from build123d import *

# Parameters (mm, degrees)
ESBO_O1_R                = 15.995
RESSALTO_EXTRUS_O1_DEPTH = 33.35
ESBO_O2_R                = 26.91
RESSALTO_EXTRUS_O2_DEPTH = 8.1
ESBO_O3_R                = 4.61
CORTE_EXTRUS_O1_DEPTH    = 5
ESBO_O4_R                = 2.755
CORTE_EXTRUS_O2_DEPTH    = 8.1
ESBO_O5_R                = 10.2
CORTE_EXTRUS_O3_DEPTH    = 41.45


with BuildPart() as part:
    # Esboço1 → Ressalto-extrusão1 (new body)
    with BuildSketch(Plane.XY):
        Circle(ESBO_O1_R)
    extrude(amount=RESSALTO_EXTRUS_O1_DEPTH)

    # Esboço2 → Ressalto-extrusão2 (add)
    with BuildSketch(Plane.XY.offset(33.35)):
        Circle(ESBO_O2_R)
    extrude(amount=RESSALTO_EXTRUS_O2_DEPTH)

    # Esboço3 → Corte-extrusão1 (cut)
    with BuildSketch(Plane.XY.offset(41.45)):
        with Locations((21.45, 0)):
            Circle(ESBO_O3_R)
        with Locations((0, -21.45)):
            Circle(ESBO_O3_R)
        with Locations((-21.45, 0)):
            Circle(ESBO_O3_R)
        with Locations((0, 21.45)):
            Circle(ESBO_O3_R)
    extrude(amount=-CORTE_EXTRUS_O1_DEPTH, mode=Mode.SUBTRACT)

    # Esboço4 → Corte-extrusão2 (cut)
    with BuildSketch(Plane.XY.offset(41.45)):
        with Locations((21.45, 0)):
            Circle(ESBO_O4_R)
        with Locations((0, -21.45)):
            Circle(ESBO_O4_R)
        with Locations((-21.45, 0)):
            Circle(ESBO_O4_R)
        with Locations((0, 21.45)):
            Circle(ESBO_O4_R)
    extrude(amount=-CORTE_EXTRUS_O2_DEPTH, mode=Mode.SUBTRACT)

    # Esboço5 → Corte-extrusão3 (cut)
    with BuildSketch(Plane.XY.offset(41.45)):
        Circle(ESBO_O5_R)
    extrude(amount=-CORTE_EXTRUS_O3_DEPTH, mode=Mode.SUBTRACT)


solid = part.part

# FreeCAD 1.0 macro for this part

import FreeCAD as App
import Part
import Sketcher

doc = App.newDocument("Part")
body = doc.addObject("PartDesign::Body", "Body")

# Sketch on XY plane
sketch1 = body.newObject("Sketcher::SketchObject", "Sketch")
sketch1.AttachmentSupport = (doc.getObject("XY_Plane"), [""])
sketch1.MapMode = "FlatFace"
sketch1.addGeometry(Part.Circle(App.Vector(0, 0, 0), App.Vector(0, 0, 1), 16), False)
sketch1.addConstraint(Sketcher.Constraint("Coincident", 0, 3, -1, 1))
sketch1.addConstraint(Sketcher.Constraint("Diameter", 0, 31.99))
pad1 = body.newObject("PartDesign::Pad", "Pad")
pad1.Profile = sketch1
pad1.Length = 33.35

# Sketch on XY plane
sketch2 = body.newObject("Sketcher::SketchObject", "Sketch001")
sketch2.AttachmentSupport = (doc.getObject("XY_Plane"), [""])
sketch2.MapMode = "FlatFace"
sketch2.AttachmentOffset = App.Placement(App.Vector(0, 0, 33.35), App.Rotation())
sketch2.addGeometry(Part.Circle(App.Vector(0, 0, 0), App.Vector(0, 0, 1), 27), False)
sketch2.addConstraint(Sketcher.Constraint("Coincident", 0, 3, -1, 1))
sketch2.addConstraint(Sketcher.Constraint("Diameter", 0, 53.82))
pad2 = body.newObject("PartDesign::Pad", "Pad001")
pad2.Profile = sketch2
pad2.Length = 8.1

# Sketch on XY plane
sketch3 = body.newObject("Sketcher::SketchObject", "Sketch002")
sketch3.AttachmentSupport = (doc.getObject("XY_Plane"), [""])
sketch3.MapMode = "FlatFace"
sketch3.AttachmentOffset = App.Placement(App.Vector(0, 0, 41.45), App.Rotation())
sketch3.addGeometry(Part.Circle(App.Vector(21.4, 0, 0), App.Vector(0, 0, 1), 4.6), False)
sketch3.addGeometry(Part.Circle(App.Vector(0, -21.4, 0), App.Vector(0, 0, 1), 4.6), False)
sketch3.addGeometry(Part.Circle(App.Vector(-21.4, 0, 0), App.Vector(0, 0, 1), 4.6), False)
sketch3.addGeometry(Part.Circle(App.Vector(0, 21.4, 0), App.Vector(0, 0, 1), 4.6), False)
sketch3.addConstraint(Sketcher.Constraint("Equal", 0, 1))
sketch3.addConstraint(Sketcher.Constraint("Equal", 1, 2))
sketch3.addConstraint(Sketcher.Constraint("Equal", 2, 3))
sketch3.addConstraint(Sketcher.Constraint("Symmetric", 0, 3, 2, 3, -1, 1))
sketch3.addConstraint(Sketcher.Constraint("Symmetric", 1, 3, 3, 3, -1, 1))
sketch3.addConstraint(Sketcher.Constraint("PointOnObject", 0, 3, -1))
sketch3.addConstraint(Sketcher.Constraint("PointOnObject", 1, 3, -2))
sketch3.addConstraint(Sketcher.Constraint("Diameter", 0, 9.22))
sketch3.addConstraint(Sketcher.Constraint("DistanceX", 2, 3, 0, 3, 42.9))
sketch3.addConstraint(Sketcher.Constraint("DistanceY", 1, 3, 3, 3, 42.9))
pocket1 = body.newObject("PartDesign::Pocket", "Pocket")
pocket1.Profile = sketch3
pocket1.Length = 5

# Sketch on XY plane
sketch4 = body.newObject("Sketcher::SketchObject", "Sketch003")
sketch4.AttachmentSupport = (doc.getObject("XY_Plane"), [""])
sketch4.MapMode = "FlatFace"
sketch4.AttachmentOffset = App.Placement(App.Vector(0, 0, 41.45), App.Rotation())
sketch4.addGeometry(Part.Circle(App.Vector(21.4, 0, 0), App.Vector(0, 0, 1), 2.8), False)
sketch4.addGeometry(Part.Circle(App.Vector(0, -21.4, 0), App.Vector(0, 0, 1), 2.8), False)
sketch4.addGeometry(Part.Circle(App.Vector(-21.4, 0, 0), App.Vector(0, 0, 1), 2.8), False)
sketch4.addGeometry(Part.Circle(App.Vector(0, 21.4, 0), App.Vector(0, 0, 1), 2.8), False)
sketch4.addConstraint(Sketcher.Constraint("Equal", 0, 1))
sketch4.addConstraint(Sketcher.Constraint("Equal", 1, 2))
sketch4.addConstraint(Sketcher.Constraint("Equal", 2, 3))
sketch4.addConstraint(Sketcher.Constraint("Symmetric", 0, 3, 2, 3, -1, 1))
sketch4.addConstraint(Sketcher.Constraint("Symmetric", 1, 3, 3, 3, -1, 1))
sketch4.addConstraint(Sketcher.Constraint("PointOnObject", 0, 3, -1))
sketch4.addConstraint(Sketcher.Constraint("PointOnObject", 1, 3, -2))
sketch4.addConstraint(Sketcher.Constraint("Diameter", 0, 5.51))
sketch4.addConstraint(Sketcher.Constraint("DistanceX", 2, 3, 0, 3, 42.9))
sketch4.addConstraint(Sketcher.Constraint("DistanceY", 1, 3, 3, 3, 42.9))
pocket2 = body.newObject("PartDesign::Pocket", "Pocket001")
pocket2.Profile = sketch4
pocket2.Length = 8.1

# Sketch on XY plane
sketch5 = body.newObject("Sketcher::SketchObject", "Sketch004")
sketch5.AttachmentSupport = (doc.getObject("XY_Plane"), [""])
sketch5.MapMode = "FlatFace"
sketch5.AttachmentOffset = App.Placement(App.Vector(0, 0, 41.45), App.Rotation())
sketch5.addGeometry(Part.Circle(App.Vector(0, 0, 0), App.Vector(0, 0, 1), 10), False)
sketch5.addConstraint(Sketcher.Constraint("Coincident", 0, 3, -1, 1))
sketch5.addConstraint(Sketcher.Constraint("Diameter", 0, 20.4))
pocket3 = body.newObject("PartDesign::Pocket", "Pocket002")
pocket3.Profile = sketch5
pocket3.Length = 41.45

doc.recompute()
